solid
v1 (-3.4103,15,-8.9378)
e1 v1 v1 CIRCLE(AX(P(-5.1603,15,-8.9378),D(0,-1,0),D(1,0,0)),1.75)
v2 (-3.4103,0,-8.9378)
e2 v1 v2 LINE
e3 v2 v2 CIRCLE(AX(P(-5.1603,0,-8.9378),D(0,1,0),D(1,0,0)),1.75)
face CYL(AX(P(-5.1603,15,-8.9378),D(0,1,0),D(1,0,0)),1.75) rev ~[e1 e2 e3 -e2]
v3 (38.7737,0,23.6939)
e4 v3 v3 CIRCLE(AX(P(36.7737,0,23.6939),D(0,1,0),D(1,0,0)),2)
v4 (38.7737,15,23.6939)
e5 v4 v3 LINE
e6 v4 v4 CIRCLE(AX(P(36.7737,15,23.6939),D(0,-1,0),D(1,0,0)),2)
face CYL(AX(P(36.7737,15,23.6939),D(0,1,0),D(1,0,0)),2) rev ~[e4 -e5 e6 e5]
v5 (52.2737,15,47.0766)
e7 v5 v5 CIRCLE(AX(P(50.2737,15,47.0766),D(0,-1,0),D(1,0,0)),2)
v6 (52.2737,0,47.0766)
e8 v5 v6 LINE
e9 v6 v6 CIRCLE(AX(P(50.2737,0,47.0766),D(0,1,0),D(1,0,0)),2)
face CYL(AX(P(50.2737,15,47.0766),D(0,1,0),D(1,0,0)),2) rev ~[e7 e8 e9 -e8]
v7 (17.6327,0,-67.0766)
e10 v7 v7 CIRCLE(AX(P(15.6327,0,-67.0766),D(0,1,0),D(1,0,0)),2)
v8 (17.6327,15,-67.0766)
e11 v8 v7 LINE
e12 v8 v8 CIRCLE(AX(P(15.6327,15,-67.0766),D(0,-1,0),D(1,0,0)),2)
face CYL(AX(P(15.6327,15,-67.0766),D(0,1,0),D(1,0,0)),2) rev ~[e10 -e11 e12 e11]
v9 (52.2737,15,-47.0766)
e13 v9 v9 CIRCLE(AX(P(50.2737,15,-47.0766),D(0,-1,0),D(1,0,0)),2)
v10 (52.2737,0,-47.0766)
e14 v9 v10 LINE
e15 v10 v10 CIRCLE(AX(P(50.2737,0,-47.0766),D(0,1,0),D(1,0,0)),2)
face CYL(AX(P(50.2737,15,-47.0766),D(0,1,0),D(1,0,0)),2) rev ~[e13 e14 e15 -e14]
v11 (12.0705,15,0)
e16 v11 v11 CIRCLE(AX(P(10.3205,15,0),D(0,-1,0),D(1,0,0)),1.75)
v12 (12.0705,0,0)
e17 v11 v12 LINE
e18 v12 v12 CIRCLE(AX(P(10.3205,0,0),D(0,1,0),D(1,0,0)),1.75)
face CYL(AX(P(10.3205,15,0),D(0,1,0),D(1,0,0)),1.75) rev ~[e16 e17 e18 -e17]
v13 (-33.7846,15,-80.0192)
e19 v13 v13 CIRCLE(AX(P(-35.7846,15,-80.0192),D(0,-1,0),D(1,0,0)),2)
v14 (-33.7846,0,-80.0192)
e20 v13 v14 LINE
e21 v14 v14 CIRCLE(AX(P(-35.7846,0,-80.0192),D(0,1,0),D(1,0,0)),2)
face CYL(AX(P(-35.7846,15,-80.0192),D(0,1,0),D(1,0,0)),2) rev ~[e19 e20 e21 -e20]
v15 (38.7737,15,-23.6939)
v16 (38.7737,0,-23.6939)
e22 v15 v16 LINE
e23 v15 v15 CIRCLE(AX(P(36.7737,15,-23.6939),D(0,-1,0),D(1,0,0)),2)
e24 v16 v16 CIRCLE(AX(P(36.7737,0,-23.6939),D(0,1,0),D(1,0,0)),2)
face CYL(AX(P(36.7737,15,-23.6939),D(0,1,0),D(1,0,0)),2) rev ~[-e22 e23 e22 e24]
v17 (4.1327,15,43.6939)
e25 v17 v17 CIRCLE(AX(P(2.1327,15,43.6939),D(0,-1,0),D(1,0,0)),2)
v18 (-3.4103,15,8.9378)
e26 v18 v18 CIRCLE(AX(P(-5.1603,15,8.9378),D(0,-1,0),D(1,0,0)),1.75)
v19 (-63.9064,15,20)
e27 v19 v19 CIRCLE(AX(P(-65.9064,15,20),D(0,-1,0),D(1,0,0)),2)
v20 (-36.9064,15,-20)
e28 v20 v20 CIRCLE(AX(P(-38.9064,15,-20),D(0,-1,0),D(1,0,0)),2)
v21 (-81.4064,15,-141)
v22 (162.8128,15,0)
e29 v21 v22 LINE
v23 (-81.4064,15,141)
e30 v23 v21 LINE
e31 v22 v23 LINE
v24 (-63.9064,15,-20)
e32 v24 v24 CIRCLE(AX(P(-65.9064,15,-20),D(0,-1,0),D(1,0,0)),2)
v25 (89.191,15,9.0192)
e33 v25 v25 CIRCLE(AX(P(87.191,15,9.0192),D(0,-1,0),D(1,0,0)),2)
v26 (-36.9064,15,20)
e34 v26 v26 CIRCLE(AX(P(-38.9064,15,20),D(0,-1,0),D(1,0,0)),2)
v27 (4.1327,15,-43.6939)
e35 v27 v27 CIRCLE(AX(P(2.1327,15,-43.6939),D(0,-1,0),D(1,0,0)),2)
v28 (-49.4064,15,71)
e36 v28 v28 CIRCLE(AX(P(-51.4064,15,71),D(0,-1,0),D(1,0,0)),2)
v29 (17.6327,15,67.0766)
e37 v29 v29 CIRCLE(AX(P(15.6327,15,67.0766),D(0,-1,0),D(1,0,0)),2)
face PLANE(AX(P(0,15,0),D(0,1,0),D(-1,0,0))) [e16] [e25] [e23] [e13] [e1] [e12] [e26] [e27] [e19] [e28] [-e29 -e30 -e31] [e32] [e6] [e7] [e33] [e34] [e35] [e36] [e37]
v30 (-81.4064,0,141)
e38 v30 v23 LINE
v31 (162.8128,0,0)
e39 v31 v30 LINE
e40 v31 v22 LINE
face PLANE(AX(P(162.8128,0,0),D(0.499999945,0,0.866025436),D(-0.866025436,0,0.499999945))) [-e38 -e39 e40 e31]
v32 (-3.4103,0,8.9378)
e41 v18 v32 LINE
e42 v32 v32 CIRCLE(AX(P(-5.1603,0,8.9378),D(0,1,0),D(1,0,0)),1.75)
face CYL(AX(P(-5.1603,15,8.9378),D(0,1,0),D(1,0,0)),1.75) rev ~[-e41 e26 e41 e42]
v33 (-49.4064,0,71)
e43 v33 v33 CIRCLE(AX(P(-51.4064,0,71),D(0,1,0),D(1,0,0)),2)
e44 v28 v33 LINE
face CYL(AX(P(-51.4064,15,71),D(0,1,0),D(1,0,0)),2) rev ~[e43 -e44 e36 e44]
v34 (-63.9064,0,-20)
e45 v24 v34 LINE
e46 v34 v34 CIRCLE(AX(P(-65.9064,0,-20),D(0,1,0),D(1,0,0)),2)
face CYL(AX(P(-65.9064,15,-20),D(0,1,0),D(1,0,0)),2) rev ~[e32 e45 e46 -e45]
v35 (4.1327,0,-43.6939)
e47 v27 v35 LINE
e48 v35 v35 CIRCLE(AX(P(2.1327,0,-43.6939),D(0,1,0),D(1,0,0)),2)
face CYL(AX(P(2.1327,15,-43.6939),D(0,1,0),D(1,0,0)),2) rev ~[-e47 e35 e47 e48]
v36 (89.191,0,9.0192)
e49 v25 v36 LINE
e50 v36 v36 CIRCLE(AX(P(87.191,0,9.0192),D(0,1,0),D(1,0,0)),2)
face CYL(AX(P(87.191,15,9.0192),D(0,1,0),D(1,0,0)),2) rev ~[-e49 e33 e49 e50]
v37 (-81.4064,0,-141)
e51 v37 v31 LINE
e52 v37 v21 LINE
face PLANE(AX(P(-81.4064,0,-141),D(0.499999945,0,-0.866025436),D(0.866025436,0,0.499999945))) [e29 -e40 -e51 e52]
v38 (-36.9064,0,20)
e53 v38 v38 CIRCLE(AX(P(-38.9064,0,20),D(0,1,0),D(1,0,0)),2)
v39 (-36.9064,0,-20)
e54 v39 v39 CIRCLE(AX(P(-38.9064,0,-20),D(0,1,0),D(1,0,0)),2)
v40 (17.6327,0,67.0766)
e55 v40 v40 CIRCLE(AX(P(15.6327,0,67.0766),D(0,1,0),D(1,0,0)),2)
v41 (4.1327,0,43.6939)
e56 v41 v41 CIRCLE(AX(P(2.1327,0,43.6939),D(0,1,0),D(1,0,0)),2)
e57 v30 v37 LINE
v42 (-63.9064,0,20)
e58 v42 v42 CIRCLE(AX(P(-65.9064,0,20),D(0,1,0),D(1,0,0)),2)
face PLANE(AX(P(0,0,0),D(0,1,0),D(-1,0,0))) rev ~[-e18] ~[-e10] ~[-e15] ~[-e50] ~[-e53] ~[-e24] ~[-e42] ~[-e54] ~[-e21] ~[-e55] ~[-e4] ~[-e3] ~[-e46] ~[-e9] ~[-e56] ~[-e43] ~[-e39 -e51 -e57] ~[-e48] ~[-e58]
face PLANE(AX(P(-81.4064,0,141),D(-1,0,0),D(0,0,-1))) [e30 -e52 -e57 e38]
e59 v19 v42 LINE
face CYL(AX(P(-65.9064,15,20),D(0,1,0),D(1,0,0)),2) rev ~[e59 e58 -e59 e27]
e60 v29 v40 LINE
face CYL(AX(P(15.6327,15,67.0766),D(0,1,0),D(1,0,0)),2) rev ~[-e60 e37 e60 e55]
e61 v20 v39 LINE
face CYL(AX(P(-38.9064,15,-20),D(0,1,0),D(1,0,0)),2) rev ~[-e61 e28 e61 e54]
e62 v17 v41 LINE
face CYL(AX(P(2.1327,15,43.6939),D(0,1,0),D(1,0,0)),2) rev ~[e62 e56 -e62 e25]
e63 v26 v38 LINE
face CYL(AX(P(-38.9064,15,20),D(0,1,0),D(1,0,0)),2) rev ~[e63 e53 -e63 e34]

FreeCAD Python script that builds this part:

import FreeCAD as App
import Part
import Sketcher


def add_polygon(sketch, points):
    """Adds a closed chain of lines whose ends are joined by coincident constraints."""
    first, n = sketch.GeometryCount, len(points)
    for a, b in zip(points, points[1:] + points[:1]):
        sketch.addGeometry(Part.LineSegment(App.Vector(*a, 0), App.Vector(*b, 0)), False)
    for i in range(n):
        sketch.addConstraint(Sketcher.Constraint("Coincident", first + i, 2, first + (i + 1) % n, 1))

doc = App.newDocument("Part")
body = doc.addObject("PartDesign::Body", "Body")

sketch1 = doc.addObject("Sketcher::SketchObject", "Sketch")
body.addObject(sketch1)
sketch1.AttachmentSupport = (doc.XZ_Plane, [""])
sketch1.MapMode = "FlatFace"
add_polygon(sketch1, [(-81, 141), (163, 0), (-81, -141)])
sketch1.addConstraint([
    Sketcher.Constraint("Vertical", 2),
    Sketcher.Constraint("PointOnObject", 0, 2, -1),
    Sketcher.Constraint("Equal", 0, 1),
    Sketcher.Constraint("DistanceY", 2, 1, 2, 2, 282.0),
    Sketcher.Constraint("Distance", 0, 282.0),
    Sketcher.Constraint("DistanceX", -1, 1, 0, 2, 162.8128),
])
pad1 = doc.addObject("PartDesign::Pad", "Pad")
body.addObject(pad1)
pad1.Profile = sketch1
pad1.Length = 15
pad1.Reversed = True

sketch2 = doc.addObject("Sketcher::SketchObject", "Sketch001")
body.addObject(sketch2)
sketch2.AttachmentSupport = (doc.XZ_Plane, [""])
sketch2.MapMode = "FlatFace"
sketch2.AttachmentOffset = App.Placement(App.Vector(0, 0, -15), App.Rotation())
sketch2.addGeometry([
    Part.Circle(App.Vector(-65.9, -20, 0), App.Vector(0, 0, 1), 2),
    Part.Circle(App.Vector(-65.9, 20, 0), App.Vector(0, 0, 1), 2),
    Part.Circle(App.Vector(-38.9, -20, 0), App.Vector(0, 0, 1), 2),
    Part.Circle(App.Vector(-38.9, 20, 0), App.Vector(0, 0, 1), 2),
], False)
sketch2.addConstraint([
    Sketcher.Constraint("Equal", 0, 1),
    Sketcher.Constraint("Equal", 1, 2),
    Sketcher.Constraint("Equal", 2, 3),
    Sketcher.Constraint("Symmetric", 0, 3, 1, 3, -1),
    Sketcher.Constraint("Symmetric", 2, 3, 3, 3, -1),
    Sketcher.Constraint("Horizontal", 0, 3, 2, 3),
    Sketcher.Constraint("Diameter", 0, 4.0),
    Sketcher.Constraint("DistanceY", 0, 3, -1, 1, 20.0),
    Sketcher.Constraint("DistanceX", 0, 3, 2, 3, 27.0),
    Sketcher.Constraint("DistanceX", 0, 3, -1, 1, 65.9064),
])
pocket1 = doc.addObject("PartDesign::Pocket", "Pocket")
body.addObject(pocket1)
pocket1.Profile = sketch2
pocket1.Length = 15
pocket1.Reversed = True

sketch3 = doc.addObject("Sketcher::SketchObject", "Sketch002")
body.addObject(sketch3)
sketch3.AttachmentSupport = (doc.XZ_Plane, [""])
sketch3.MapMode = "FlatFace"
sketch3.AttachmentOffset = App.Placement(App.Vector(0, 0, -15), App.Rotation())
sketch3.addGeometry([
    Part.Circle(App.Vector(36.8, -23.7, 0), App.Vector(0, 0, 1), 2),
    Part.Circle(App.Vector(2.1, -43.7, 0), App.Vector(0, 0, 1), 2),
    Part.Circle(App.Vector(15.6, -67.1, 0), App.Vector(0, 0, 1), 2),
    Part.Circle(App.Vector(50.3, -47.1, 0), App.Vector(0, 0, 1), 2),
], False)
sketch3.addConstraint([
    Sketcher.Constraint("Equal", 0, 1),
    Sketcher.Constraint("Equal", 1, 2),
    Sketcher.Constraint("Equal", 2, 3),
    Sketcher.Constraint("Diameter", 0, 4.0),
    Sketcher.Constraint("DistanceY", 1, 3, 0, 3, 20.0),
    Sketcher.Constraint("DistanceY", 2, 3, 3, 3, 20.0),
    Sketcher.Constraint("DistanceX", 1, 3, 2, 3, 13.5),
    Sketcher.Constraint("DistanceX", 0, 3, 3, 3, 13.5),
    Sketcher.Constraint("DistanceY", 0, 3, -1, 1, 23.694),
    Sketcher.Constraint("DistanceX", 1, 3, 0, 3, 34.641),
    Sketcher.Constraint("DistanceX", -1, 1, 0, 3, 36.7737),
    Sketcher.Constraint("DistanceY", 2, 3, -1, 1, 67.0766),
])
pocket2 = doc.addObject("PartDesign::Pocket", "Pocket001")
body.addObject(pocket2)
pocket2.Profile = sketch3
pocket2.Length = 15
pocket2.Reversed = True

sketch4 = doc.addObject("Sketcher::SketchObject", "Sketch003")
body.addObject(sketch4)
sketch4.AttachmentSupport = (doc.XZ_Plane, [""])
sketch4.MapMode = "FlatFace"
sketch4.AttachmentOffset = App.Placement(App.Vector(0, 0, -15), App.Rotation())
sketch4.addGeometry([
    Part.Circle(App.Vector(2.1, 43.7, 0), App.Vector(0, 0, 1), 2),
    Part.Circle(App.Vector(36.8, 23.7, 0), App.Vector(0, 0, 1), 2),
    Part.Circle(App.Vector(50.3, 47.1, 0), App.Vector(0, 0, 1), 2),
    Part.Circle(App.Vector(15.6, 67.1, 0), App.Vector(0, 0, 1), 2),
], False)
sketch4.addConstraint([
    Sketcher.Constraint("Equal", 0, 1),
    Sketcher.Constraint("Equal", 1, 2),
    Sketcher.Constraint("Equal", 2, 3),
    Sketcher.Constraint("Diameter", 0, 4.0),
    Sketcher.Constraint("DistanceY", 1, 3, 0, 3, 20.0),
    Sketcher.Constraint("DistanceY", 2, 3, 3, 3, 20.0),
    Sketcher.Constraint("DistanceX", 1, 3, 2, 3, 13.5),
    Sketcher.Constraint("DistanceX", 0, 3, 3, 3, 13.5),
    Sketcher.Constraint("DistanceY", -1, 1, 0, 3, 43.694),
    Sketcher.Constraint("DistanceX", 0, 3, 1, 3, 34.641),
    Sketcher.Constraint("DistanceX", -1, 1, 0, 3, 2.1327),
    Sketcher.Constraint("DistanceY", -1, 1, 2, 3, 47.0766),
])
pocket3 = doc.addObject("PartDesign::Pocket", "Pocket002")
body.addObject(pocket3)
pocket3.Profile = sketch4
pocket3.Length = 15
pocket3.Reversed = True

sketch5 = doc.addObject("Sketcher::SketchObject", "Sketch004")
body.addObject(sketch5)
sketch5.AttachmentSupport = (doc.XZ_Plane, [""])
sketch5.MapMode = "FlatFace"
sketch5.AttachmentOffset = App.Placement(App.Vector(0, 0, -15), App.Rotation())
sketch5.addGeometry([
    Part.Circle(App.Vector(-5.2, 8.9, 0), App.Vector(0, 0, 1), 1.8),
    Part.Circle(App.Vector(-5.2, -8.9, 0), App.Vector(0, 0, 1), 1.8),
    Part.Circle(App.Vector(10.3, 0, 0), App.Vector(0, 0, 1), 1.8),
], False)
sketch5.addConstraint([
    Sketcher.Constraint("Equal", 0, 1),
    Sketcher.Constraint("Equal", 1, 2),
    Sketcher.Constraint("Symmetric", 0, 3, 1, 3, -1),
    Sketcher.Constraint("PointOnObject", 2, 3, -1),
    Sketcher.Constraint("Diameter", 0, 3.5),
    Sketcher.Constraint("DistanceX", 0, 3, -1, 1, 5.1603),
    Sketcher.Constraint("DistanceY", -1, 1, 0, 3, 8.9378),
    Sketcher.Constraint("DistanceX", -1, 1, 2, 3, 10.3205),
])
pocket4 = doc.addObject("PartDesign::Pocket", "Pocket003")
body.addObject(pocket4)
pocket4.Profile = sketch5
pocket4.Length = 15
pocket4.Reversed = True

sketch6 = doc.addObject("Sketcher::SketchObject", "Sketch005")
body.addObject(sketch6)
sketch6.AttachmentSupport = (doc.XZ_Plane, [""])
sketch6.MapMode = "FlatFace"
sketch6.AttachmentOffset = App.Placement(App.Vector(0, 0, -15), App.Rotation())
sketch6.addGeometry([
    Part.Circle(App.Vector(87.2, 9, 0), App.Vector(0, 0, 1), 2),
    Part.Circle(App.Vector(-35.8, -80, 0), App.Vector(0, 0, 1), 2),
    Part.Circle(App.Vector(-51.4, 71, 0), App.Vector(0, 0, 1), 2),
], False)
sketch6.addConstraint([
    Sketcher.Constraint("Equal", 0, 1),
    Sketcher.Constraint("Equal", 1, 2),
    Sketcher.Constraint("Diameter", 0, 4.0),
    Sketcher.Constraint("DistanceY", -1, 1, 2, 3, 71.0),
    Sketcher.Constraint("DistanceX", -1, 1, 0, 3, 87.191),
    Sketcher.Constraint("DistanceY", -1, 1, 0, 3, 9.0192),
    Sketcher.Constraint("DistanceX", 1, 3, -1, 1, 35.7846),
    Sketcher.Constraint("DistanceY", 1, 3, -1, 1, 80.0192),
    Sketcher.Constraint("DistanceX", 2, 3, -1, 1, 51.4064),
])
pocket5 = doc.addObject("PartDesign::Pocket", "Pocket004")
body.addObject(pocket5)
pocket5.Profile = sketch6
pocket5.Length = 15
pocket5.Reversed = True

doc.recompute()
